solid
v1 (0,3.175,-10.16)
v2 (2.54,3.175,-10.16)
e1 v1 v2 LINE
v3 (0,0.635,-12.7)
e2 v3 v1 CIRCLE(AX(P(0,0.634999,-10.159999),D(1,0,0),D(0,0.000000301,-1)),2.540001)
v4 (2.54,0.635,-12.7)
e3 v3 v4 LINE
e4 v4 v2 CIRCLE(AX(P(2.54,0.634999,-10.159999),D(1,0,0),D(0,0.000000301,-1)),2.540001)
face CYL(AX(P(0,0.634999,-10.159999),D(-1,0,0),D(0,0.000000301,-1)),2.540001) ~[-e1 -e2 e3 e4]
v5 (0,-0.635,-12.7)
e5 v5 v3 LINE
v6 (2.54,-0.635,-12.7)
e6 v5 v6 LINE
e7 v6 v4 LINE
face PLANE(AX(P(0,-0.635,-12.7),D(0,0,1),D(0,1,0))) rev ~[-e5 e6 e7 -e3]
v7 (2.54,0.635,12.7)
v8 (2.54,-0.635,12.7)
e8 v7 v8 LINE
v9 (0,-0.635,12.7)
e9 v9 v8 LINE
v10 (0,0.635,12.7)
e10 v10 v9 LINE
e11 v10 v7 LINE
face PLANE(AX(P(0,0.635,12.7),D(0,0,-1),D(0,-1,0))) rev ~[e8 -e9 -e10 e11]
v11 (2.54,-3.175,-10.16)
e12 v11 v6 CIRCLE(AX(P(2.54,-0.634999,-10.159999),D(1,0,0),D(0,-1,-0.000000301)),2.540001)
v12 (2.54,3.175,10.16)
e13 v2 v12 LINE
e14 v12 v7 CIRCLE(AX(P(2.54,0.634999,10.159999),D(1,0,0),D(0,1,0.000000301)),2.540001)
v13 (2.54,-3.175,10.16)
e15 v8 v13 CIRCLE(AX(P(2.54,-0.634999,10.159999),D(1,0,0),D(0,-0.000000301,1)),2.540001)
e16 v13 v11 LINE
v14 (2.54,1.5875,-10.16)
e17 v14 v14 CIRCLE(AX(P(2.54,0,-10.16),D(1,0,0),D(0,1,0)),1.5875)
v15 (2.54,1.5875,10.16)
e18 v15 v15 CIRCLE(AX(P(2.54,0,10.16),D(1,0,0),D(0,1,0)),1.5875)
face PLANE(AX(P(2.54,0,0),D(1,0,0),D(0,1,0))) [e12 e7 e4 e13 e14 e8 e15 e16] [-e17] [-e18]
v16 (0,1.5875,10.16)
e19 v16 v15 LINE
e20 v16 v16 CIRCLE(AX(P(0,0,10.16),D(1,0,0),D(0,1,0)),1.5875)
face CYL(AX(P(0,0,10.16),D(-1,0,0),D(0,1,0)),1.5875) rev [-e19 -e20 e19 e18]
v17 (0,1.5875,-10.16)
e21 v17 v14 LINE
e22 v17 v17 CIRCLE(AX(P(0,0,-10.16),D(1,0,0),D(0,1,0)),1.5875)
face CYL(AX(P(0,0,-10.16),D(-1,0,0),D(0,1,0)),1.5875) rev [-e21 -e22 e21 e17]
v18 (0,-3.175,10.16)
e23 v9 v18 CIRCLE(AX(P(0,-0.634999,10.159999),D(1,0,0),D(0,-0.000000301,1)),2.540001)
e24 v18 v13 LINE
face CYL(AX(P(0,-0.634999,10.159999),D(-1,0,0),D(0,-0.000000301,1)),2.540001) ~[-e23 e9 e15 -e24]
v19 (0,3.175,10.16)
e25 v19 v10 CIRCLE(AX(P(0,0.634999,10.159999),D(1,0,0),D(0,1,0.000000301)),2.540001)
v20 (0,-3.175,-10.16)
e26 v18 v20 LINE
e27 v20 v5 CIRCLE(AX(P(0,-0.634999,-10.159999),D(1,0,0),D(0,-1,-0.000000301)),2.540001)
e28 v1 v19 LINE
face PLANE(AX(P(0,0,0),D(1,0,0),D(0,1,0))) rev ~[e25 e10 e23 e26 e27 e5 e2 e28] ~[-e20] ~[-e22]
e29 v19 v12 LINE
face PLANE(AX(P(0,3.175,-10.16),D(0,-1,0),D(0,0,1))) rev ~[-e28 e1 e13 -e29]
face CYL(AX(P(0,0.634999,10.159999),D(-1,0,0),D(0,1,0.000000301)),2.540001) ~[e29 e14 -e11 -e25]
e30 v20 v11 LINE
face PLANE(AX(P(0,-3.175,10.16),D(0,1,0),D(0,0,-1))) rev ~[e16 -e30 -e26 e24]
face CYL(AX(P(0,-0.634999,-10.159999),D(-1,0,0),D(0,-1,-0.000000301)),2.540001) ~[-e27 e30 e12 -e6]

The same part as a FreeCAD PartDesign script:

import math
import FreeCAD as App
import Part
import Sketcher

V = App.Vector
Q = App.Units.Quantity

doc = App.newDocument("Part")
body = doc.addObject("PartDesign::Body", "Body")

sketch1 = doc.addObject("Sketcher::SketchObject", "Sketch")
body.addObject(sketch1)
sketch1.AttachmentSupport = (doc.YZ_Plane, [""])
sketch1.MapMode = "FlatFace"
sketch1.addGeometry([
    Part.ArcOfCircle(Part.Circle(V(0.634999, 10.159999, 0), V(0, 0, 1), 2.540001), math.radians(0.000017), math.radians(89.999983)),
    Part.LineSegment(V(0.635, 12.7, 0), V(-0.635, 12.7, 0)),
    Part.ArcOfCircle(Part.Circle(V(-0.634999, 10.159999, 0), V(0, 0, 1), 2.540001), math.radians(90.000017), math.radians(179.999983)),
    Part.LineSegment(V(-3.175, 10.16, 0), V(-3.175, -10.16, 0)),
    Part.ArcOfCircle(Part.Circle(V(-0.634999, -10.159999, 0), V(0, 0, 1), 2.540001), math.radians(-179.999983), math.radians(-90.000017)),
    Part.LineSegment(V(-0.635, -12.7, 0), V(0.635, -12.7, 0)),
    Part.ArcOfCircle(Part.Circle(V(0.634999, -10.159999, 0), V(0, 0, 1), 2.540001), math.radians(-89.999983), math.radians(-0.000017)),
    Part.LineSegment(V(3.175, -10.16, 0), V(3.175, 10.16, 0)),
    Part.Circle(V(0, -10.16, 0), V(0, 0, 1), 1.5875),
    Part.Circle(V(0, 10.16, 0), V(0, 0, 1), 1.5875),
], False)
sketch1.addConstraint([
    Sketcher.Constraint("Tangent", 0, 2, 1, 1),
    Sketcher.Constraint("Tangent", 1, 2, 2, 1),
    Sketcher.Constraint("Tangent", 2, 2, 3, 1),
    Sketcher.Constraint("Tangent", 3, 2, 4, 1),
    Sketcher.Constraint("Tangent", 4, 2, 5, 1),
    Sketcher.Constraint("Tangent", 5, 2, 6, 1),
    Sketcher.Constraint("Tangent", 6, 2, 7, 1),
    Sketcher.Constraint("Tangent", 7, 2, 0, 1),
    Sketcher.Constraint("Horizontal", 1),
    Sketcher.Constraint("Vertical", 3),
    Sketcher.Constraint("Horizontal", 5),
    Sketcher.Constraint("Vertical", 7),
    Sketcher.Constraint("Equal", 0, 2),
    Sketcher.Constraint("Equal", 2, 4),
    Sketcher.Constraint("Equal", 4, 6),
    Sketcher.Constraint("Equal", 8, 9),
    Sketcher.Constraint("Symmetric", 0, 3, 4, 3, -1, 1),
    Sketcher.Constraint("Symmetric", 8, 3, 9, 3, -1, 1),
    Sketcher.Constraint("PointOnObject", 8, 3, -2),
    Sketcher.Constraint("Horizontal", 6, 3, 8, 3),
    Sketcher.Constraint("Radius", 0, Q("0.1 in")),
    Sketcher.Constraint("Diameter", 8, Q("0.125 in")),
    Sketcher.Constraint("DistanceY", 3, 2, 3, 1, Q("0.8 in")),
    Sketcher.Constraint("DistanceX", 1, 2, 1, 1, Q("0.05 in")),
])
pad1 = doc.addObject("PartDesign::Pad", "Pad")
body.addObject(pad1)
pad1.Profile = sketch1
pad1.Length = Q("0.1 in")

doc.recompute()
